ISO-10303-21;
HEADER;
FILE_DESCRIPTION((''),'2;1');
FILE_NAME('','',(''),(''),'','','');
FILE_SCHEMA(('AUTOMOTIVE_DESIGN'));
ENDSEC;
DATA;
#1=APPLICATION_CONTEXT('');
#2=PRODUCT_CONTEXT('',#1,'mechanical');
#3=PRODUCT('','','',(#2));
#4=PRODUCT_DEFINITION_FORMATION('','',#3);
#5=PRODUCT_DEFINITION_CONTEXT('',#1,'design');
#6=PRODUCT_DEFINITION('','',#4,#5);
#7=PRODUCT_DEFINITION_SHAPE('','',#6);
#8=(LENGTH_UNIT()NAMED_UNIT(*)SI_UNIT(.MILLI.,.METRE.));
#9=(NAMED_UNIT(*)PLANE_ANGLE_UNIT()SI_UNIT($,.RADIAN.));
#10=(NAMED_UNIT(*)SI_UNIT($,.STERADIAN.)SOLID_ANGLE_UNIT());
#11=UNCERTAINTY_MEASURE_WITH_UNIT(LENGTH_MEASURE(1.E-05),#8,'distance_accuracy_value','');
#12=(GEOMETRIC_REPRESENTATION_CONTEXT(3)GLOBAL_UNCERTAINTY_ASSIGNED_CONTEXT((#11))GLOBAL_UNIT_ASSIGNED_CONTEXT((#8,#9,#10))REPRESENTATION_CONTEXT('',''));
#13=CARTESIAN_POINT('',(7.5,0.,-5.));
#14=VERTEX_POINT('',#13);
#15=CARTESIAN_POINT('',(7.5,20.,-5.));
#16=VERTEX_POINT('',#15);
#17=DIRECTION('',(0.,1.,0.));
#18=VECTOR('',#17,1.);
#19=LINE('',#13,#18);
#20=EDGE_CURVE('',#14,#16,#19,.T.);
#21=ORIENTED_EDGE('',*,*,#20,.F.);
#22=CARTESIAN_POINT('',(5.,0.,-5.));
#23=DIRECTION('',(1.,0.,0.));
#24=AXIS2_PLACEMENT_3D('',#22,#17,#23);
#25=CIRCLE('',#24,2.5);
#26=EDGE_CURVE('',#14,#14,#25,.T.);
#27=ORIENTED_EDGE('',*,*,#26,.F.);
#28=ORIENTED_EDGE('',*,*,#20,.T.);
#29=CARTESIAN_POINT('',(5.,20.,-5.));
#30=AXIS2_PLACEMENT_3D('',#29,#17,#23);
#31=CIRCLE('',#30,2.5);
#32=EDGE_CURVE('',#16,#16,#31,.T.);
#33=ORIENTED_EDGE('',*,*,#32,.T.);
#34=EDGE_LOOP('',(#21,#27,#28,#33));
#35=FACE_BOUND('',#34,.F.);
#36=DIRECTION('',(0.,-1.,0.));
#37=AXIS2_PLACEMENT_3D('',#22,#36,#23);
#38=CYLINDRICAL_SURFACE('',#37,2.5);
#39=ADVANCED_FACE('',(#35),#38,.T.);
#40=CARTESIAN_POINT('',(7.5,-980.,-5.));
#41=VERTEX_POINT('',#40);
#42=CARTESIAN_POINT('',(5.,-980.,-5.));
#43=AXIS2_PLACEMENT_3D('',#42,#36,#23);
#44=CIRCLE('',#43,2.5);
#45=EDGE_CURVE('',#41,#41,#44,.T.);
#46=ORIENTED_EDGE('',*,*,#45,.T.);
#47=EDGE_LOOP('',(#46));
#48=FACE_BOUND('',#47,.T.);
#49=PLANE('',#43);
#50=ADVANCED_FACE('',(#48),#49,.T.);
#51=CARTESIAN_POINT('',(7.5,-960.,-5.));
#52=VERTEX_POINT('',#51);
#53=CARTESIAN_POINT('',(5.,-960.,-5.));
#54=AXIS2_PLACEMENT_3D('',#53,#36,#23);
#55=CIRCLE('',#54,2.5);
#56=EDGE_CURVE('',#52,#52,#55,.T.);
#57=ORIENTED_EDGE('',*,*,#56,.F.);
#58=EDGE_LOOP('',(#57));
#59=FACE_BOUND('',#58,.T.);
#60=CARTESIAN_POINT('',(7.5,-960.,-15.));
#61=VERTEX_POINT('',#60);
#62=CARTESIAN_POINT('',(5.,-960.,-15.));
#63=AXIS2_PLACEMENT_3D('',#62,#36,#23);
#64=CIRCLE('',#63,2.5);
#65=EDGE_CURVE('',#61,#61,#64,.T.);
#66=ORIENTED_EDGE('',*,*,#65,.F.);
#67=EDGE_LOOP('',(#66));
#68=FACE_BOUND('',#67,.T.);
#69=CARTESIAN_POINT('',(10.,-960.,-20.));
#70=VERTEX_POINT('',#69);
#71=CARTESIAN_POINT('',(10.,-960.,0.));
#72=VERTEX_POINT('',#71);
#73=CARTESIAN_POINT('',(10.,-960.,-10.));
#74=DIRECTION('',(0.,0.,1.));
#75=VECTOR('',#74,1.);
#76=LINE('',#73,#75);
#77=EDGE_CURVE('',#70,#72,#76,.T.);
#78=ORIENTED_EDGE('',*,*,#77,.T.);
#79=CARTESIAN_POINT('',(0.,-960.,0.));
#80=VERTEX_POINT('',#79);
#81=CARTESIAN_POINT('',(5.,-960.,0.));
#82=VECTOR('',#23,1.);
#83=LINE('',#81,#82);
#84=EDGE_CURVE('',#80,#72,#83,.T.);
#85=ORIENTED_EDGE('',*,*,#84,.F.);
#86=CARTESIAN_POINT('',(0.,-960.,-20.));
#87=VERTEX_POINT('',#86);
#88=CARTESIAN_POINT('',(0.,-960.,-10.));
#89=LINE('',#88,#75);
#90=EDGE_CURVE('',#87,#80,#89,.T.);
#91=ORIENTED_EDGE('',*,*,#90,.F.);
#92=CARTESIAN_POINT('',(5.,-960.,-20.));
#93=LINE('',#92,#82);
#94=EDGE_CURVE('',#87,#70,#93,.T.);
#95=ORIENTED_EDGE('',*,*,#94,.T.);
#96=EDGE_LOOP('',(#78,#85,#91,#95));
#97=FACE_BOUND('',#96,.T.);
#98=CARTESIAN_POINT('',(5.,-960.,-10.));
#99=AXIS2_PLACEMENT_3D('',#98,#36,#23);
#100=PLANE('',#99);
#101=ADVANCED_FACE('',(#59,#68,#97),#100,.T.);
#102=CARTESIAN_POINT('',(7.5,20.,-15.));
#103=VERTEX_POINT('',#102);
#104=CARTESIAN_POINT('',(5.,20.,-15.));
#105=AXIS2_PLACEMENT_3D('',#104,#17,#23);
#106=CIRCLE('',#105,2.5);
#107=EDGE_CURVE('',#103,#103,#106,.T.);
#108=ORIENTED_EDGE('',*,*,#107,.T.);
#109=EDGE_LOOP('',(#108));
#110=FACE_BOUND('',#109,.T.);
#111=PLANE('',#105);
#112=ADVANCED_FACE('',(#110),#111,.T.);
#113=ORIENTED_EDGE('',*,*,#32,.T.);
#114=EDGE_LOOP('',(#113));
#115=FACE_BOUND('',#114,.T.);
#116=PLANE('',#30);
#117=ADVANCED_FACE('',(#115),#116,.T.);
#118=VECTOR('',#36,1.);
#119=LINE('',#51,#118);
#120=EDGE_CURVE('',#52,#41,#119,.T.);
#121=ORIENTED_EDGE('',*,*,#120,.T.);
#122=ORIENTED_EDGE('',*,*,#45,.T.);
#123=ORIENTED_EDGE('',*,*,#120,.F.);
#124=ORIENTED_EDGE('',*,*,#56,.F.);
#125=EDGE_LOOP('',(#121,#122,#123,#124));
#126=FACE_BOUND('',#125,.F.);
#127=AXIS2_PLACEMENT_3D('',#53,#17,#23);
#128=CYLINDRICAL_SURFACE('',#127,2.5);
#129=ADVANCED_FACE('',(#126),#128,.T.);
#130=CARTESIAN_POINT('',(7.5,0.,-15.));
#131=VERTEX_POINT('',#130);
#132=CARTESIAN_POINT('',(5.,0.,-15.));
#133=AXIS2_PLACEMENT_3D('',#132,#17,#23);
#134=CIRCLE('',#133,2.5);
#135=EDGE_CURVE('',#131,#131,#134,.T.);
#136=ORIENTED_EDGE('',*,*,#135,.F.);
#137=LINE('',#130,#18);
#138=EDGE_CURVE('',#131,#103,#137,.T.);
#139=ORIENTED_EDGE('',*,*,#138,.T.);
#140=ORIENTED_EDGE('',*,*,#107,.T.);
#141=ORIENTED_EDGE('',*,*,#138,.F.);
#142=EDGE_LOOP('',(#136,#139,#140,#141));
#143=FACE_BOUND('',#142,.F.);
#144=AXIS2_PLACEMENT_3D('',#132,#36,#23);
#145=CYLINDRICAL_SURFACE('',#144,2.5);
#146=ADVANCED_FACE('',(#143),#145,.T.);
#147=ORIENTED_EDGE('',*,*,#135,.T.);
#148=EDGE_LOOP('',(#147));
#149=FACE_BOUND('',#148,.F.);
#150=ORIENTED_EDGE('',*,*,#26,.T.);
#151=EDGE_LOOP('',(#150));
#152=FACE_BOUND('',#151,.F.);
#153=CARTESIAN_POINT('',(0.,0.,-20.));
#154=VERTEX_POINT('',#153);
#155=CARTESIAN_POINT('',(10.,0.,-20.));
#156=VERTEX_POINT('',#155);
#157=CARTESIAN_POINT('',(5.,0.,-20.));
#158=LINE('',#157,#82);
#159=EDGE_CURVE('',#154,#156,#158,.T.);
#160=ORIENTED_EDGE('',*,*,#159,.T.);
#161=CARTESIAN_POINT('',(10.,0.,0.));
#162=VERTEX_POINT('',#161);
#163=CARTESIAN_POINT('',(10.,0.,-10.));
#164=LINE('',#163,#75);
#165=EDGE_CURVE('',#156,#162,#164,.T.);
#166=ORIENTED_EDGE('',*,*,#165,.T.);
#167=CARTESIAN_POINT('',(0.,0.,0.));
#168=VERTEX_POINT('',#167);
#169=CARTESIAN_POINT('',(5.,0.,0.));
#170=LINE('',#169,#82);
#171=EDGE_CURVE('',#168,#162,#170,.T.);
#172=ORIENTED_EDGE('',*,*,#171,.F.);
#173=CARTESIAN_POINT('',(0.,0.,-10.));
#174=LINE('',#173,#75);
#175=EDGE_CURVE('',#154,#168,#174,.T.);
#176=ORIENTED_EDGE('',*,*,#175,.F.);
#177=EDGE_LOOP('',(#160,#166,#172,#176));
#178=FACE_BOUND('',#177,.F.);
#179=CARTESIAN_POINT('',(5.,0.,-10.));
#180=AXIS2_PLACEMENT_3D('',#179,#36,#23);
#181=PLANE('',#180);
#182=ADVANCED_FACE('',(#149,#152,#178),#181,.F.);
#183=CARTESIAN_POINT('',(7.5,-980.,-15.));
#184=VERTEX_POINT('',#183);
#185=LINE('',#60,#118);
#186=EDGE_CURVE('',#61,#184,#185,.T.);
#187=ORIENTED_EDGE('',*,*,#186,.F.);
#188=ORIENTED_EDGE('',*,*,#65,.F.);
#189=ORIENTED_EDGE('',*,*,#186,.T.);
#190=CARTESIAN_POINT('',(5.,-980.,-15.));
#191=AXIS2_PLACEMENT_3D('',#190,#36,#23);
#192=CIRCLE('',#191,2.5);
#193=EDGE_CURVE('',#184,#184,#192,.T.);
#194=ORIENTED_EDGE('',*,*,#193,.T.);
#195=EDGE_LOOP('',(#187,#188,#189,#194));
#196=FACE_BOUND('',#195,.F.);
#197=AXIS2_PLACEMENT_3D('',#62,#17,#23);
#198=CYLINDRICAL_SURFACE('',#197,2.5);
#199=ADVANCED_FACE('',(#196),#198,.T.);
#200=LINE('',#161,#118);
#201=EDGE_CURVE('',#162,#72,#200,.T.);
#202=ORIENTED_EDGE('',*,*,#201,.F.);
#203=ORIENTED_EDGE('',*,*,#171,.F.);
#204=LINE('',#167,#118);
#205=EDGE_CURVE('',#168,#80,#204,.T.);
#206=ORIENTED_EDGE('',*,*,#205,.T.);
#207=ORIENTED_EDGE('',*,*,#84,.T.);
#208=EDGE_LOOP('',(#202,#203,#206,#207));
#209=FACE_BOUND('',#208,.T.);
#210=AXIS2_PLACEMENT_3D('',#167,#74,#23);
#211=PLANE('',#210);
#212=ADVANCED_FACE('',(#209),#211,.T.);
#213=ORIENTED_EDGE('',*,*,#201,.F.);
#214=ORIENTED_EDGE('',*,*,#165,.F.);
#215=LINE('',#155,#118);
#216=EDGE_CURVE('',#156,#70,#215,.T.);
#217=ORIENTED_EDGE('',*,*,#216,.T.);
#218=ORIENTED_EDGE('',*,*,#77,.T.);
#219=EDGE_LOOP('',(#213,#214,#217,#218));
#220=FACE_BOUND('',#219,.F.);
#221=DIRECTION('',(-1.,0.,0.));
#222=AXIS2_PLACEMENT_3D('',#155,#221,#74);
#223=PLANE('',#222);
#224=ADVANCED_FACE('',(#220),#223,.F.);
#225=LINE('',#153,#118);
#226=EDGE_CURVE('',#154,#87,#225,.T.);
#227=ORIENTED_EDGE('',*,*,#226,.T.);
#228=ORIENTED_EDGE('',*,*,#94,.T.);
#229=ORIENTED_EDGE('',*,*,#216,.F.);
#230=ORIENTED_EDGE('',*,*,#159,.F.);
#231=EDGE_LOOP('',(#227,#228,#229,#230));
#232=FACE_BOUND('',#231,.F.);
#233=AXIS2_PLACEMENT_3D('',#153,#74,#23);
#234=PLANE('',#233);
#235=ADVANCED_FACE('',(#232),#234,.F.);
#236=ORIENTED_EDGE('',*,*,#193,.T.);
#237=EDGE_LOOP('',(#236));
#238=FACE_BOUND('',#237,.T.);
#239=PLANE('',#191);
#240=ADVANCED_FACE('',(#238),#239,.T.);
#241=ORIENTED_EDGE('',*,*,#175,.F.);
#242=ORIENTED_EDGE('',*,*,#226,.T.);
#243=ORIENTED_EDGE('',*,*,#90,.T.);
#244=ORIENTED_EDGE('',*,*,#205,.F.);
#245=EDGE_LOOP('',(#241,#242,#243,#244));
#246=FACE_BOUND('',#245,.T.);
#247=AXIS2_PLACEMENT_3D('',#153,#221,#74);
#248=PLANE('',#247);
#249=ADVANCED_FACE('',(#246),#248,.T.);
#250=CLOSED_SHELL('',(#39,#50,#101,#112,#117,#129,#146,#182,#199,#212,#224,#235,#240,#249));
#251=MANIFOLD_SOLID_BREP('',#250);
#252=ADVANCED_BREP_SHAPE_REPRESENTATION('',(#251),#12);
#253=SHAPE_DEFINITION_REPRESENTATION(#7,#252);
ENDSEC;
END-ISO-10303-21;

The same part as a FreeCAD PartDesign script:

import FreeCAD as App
import Part
import Sketcher

V = App.Vector
Q = App.Units.Quantity

doc = App.newDocument("Part")
body = doc.addObject("PartDesign::Body", "Body")

sketch1 = body.newObject("Sketcher::SketchObject", "Sketch")
sketch1.AttachmentSupport = (doc.getObject("XZ_Plane"), [""])
sketch1.MapMode = "FlatFace"
sketch1.addGeometry(Part.LineSegment(V(0, 0, 0), V(0, -20, 0)), False)
sketch1.addGeometry(Part.LineSegment(V(0, -20, 0), V(10, -20, 0)), False)
sketch1.addGeometry(Part.LineSegment(V(10, -20, 0), V(10, 0, 0)), False)
sketch1.addGeometry(Part.LineSegment(V(10, 0, 0), V(0, 0, 0)), False)
sketch1.addConstraint(Sketcher.Constraint("Coincident", 0, 2, 1, 1))
sketch1.addConstraint(Sketcher.Constraint("Coincident", 1, 2, 2, 1))
sketch1.addConstraint(Sketcher.Constraint("Coincident", 2, 2, 3, 1))
sketch1.addConstraint(Sketcher.Constraint("Coincident", 3, 2, 0, 1))
sketch1.addConstraint(Sketcher.Constraint("Vertical", 0))
sketch1.addConstraint(Sketcher.Constraint("Horizontal", 1))
sketch1.addConstraint(Sketcher.Constraint("Vertical", 2))
sketch1.addConstraint(Sketcher.Constraint("Horizontal", 3))
sketch1.addConstraint(Sketcher.Constraint("Coincident", 3, 2, -1, 1))
sketch1.addConstraint(Sketcher.Constraint("DistanceX", 1, 1, 1, 2, Q("10 mm")))
sketch1.addConstraint(Sketcher.Constraint("DistanceY", 0, 2, 0, 1, Q("20 mm")))
pad1 = body.newObject("PartDesign::Pad", "Pad")
pad1.Profile = sketch1
pad1.Length = 960

sketch2 = body.newObject("Sketcher::SketchObject", "Sketch001")
sketch2.AttachmentSupport = (doc.getObject("XZ_Plane"), [""])
sketch2.MapMode = "FlatFace"
sketch2.AttachmentOffset = App.Placement(V(0, 0, 960), App.Rotation())
sketch2.addGeometry(Part.Circle(V(5, -5, 0), V(0, 0, 1), 2.5), False)
sketch2.addGeometry(Part.Circle(V(5, -15, 0), V(0, 0, 1), 2.5), False)
sketch2.addConstraint(Sketcher.Constraint("Equal", 0, 1))
sketch2.addConstraint(Sketcher.Constraint("Vertical", 0, 3, 1, 3))
sketch2.addConstraint(Sketcher.Constraint("Diameter", 0, Q("5 mm")))
sketch2.addConstraint(Sketcher.Constraint("DistanceX", -1, 1, 0, 3, Q("5 mm")))
sketch2.addConstraint(Sketcher.Constraint("DistanceY", 0, 3, -1, 1, Q("5 mm")))
sketch2.addConstraint(Sketcher.Constraint("DistanceY", 1, 3, -1, 1, Q("15 mm")))
pad2 = body.newObject("PartDesign::Pad", "Pad001")
pad2.Profile = sketch2
pad2.Length = 20

sketch3 = body.newObject("Sketcher::SketchObject", "Sketch002")
sketch3.AttachmentSupport = (doc.getObject("XZ_Plane"), [""])
sketch3.MapMode = "FlatFace"
sketch3.addGeometry(Part.Circle(V(5, -15, 0), V(0, 0, 1), 2.5), False)
sketch3.addGeometry(Part.Circle(V(5, -5, 0), V(0, 0, 1), 2.5), False)
sketch3.addConstraint(Sketcher.Constraint("Equal", 0, 1))
sketch3.addConstraint(Sketcher.Constraint("Vertical", 0, 3, 1, 3))
sketch3.addConstraint(Sketcher.Constraint("Diameter", 0, Q("5 mm")))
sketch3.addConstraint(Sketcher.Constraint("DistanceX", -1, 1, 0, 3, Q("5 mm")))
sketch3.addConstraint(Sketcher.Constraint("DistanceY", 0, 3, -1, 1, Q("15 mm")))
sketch3.addConstraint(Sketcher.Constraint("DistanceY", 1, 3, -1, 1, Q("5 mm")))
pad3 = body.newObject("PartDesign::Pad", "Pad002")
pad3.Profile = sketch3
pad3.Length = 20
pad3.Reversed = True

doc.recompute()
